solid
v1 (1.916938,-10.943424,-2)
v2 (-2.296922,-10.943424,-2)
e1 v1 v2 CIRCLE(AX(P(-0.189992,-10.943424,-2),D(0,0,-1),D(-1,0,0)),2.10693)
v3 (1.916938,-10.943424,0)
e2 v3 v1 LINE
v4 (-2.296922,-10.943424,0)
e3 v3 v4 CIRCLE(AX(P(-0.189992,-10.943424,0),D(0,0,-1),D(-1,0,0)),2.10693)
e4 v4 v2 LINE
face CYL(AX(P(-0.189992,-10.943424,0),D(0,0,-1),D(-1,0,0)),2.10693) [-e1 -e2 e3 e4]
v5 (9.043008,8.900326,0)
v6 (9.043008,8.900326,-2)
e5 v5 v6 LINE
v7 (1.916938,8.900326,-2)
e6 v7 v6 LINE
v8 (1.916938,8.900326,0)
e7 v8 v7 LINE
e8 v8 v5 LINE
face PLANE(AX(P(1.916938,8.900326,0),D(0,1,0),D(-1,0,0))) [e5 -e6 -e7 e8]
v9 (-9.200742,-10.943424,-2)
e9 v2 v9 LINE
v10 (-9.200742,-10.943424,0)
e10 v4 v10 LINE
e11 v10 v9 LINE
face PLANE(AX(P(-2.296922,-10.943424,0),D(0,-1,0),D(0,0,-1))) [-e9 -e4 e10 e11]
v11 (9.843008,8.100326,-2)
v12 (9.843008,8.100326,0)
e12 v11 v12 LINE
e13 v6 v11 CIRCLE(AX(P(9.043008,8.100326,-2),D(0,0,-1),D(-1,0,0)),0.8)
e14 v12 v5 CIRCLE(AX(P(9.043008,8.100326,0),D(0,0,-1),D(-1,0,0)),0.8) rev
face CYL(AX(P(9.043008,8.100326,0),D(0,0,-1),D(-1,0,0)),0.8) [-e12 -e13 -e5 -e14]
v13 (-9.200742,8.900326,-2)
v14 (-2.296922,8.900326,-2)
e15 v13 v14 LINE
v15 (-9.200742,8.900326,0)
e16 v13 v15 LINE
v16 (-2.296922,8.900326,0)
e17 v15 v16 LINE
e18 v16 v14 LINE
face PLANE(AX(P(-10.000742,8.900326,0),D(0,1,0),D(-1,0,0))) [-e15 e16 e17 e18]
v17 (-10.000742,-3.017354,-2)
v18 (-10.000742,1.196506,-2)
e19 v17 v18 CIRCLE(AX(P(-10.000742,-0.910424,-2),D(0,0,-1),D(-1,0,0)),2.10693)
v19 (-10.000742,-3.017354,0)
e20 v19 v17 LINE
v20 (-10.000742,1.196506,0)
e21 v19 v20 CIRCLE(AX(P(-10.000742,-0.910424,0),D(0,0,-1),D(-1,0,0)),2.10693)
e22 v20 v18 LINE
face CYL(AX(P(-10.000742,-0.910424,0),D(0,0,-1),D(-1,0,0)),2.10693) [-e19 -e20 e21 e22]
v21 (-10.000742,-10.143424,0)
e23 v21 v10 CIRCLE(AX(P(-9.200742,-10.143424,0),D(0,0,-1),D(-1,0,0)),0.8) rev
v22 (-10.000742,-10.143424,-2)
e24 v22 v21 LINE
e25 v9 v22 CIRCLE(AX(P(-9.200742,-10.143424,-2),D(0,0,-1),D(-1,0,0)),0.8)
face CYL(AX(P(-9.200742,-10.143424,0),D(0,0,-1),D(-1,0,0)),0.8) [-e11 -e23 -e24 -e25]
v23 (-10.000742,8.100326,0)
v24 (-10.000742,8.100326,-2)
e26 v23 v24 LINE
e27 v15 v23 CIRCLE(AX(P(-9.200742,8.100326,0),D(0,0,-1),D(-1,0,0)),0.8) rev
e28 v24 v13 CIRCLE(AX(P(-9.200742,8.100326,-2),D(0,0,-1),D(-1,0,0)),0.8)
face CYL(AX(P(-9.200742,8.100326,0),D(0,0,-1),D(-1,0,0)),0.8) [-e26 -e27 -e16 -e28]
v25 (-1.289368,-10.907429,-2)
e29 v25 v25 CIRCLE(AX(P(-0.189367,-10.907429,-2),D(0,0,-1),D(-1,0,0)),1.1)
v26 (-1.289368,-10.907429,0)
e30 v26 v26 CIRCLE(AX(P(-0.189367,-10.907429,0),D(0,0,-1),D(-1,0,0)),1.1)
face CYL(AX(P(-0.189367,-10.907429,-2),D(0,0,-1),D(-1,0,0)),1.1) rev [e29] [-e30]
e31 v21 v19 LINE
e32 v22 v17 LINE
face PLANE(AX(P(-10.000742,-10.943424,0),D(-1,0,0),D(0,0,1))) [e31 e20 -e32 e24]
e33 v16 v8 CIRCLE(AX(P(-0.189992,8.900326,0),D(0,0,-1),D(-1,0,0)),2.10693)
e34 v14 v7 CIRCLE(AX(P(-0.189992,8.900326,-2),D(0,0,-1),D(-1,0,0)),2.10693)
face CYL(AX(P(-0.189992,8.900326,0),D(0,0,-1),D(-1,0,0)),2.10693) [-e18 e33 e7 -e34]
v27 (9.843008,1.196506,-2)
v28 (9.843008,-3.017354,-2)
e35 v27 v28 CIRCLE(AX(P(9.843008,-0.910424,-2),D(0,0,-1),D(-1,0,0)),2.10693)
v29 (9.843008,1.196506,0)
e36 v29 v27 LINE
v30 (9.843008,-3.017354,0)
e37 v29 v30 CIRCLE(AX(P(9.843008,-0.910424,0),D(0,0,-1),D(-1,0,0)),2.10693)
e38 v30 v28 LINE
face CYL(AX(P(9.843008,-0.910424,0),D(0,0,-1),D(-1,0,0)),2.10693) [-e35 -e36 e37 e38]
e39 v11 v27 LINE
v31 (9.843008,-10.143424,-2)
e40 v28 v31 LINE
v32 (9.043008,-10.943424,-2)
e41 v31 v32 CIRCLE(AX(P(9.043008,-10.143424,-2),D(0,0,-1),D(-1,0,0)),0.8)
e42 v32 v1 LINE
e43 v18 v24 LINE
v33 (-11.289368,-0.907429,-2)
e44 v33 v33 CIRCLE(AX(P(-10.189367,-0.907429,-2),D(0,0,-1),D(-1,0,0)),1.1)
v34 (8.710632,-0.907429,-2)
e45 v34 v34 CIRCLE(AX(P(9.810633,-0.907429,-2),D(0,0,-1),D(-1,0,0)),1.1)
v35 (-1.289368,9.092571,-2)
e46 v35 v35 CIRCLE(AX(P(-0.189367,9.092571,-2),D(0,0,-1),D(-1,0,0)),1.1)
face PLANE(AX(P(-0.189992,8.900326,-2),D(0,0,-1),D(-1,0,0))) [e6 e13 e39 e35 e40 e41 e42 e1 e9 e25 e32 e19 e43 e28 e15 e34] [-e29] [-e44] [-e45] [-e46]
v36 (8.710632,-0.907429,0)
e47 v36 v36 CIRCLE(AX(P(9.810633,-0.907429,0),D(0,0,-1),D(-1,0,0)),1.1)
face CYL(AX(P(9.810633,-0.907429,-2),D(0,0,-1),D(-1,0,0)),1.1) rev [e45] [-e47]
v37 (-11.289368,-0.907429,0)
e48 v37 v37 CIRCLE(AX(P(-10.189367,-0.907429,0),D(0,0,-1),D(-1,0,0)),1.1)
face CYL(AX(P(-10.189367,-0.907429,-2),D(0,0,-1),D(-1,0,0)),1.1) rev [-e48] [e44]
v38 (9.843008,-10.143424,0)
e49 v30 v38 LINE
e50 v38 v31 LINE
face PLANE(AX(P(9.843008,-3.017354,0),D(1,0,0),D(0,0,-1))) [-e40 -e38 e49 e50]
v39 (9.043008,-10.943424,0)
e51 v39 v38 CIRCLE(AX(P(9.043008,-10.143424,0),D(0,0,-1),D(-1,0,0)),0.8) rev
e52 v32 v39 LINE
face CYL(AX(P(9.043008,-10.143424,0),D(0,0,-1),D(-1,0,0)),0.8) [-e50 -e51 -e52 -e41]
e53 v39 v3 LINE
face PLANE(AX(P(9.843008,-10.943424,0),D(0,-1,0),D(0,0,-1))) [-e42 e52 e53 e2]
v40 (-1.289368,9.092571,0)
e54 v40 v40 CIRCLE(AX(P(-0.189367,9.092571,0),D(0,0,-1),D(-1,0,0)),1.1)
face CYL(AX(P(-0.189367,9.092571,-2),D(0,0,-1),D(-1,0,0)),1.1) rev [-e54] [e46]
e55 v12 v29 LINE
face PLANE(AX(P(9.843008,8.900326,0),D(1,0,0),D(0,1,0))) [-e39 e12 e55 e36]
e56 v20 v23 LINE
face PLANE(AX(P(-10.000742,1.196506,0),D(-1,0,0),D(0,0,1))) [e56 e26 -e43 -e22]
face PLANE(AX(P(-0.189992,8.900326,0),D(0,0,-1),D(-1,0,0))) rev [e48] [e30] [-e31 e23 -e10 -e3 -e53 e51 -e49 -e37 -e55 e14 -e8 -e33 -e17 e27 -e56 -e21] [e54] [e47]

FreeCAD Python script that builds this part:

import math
import FreeCAD as App
import Part
import Sketcher
Q = App.Units.Quantity


def edges_at(feature, points):
    """Names of the edges that pass closest to the given points."""
    edges = feature.Shape.Edges
    near = lambda p: min(range(len(edges)), key=lambda i: edges[i].distToShape(Part.Vertex(*p))[0])
    return sorted({f"Edge{near(p) + 1}" for p in points})

doc = App.newDocument("Part")
params = doc.addObject("Spreadsheet::Sheet", "Params")
for row, (alias, value) in enumerate([
    ("pad1_length", "2 mm"),
    ("sketch2_diameter", "2.200001 mm"),
    ("hole_diameter", "2.200001 mm"),
    ("fillet_radius", "0.8 mm"),
], start=1):
    params.set(f"A{row}", alias)
    params.set(f"B{row}", "=" + value)
    params.setAlias(f"B{row}", alias)

body = doc.addObject("PartDesign::Body", "Body")

sketch1 = doc.addObject("Sketcher::SketchObject", "Sketch")
body.addObject(sketch1)
sketch1.AttachmentSupport = (doc.XY_Plane, [""])
sketch1.MapMode = "FlatFace"
sketch1.AttachmentOffset = App.Placement(App.Vector(0, 0, -2), App.Rotation())
sketch1.addGeometry(Part.LineSegment(App.Vector(1.916938, 8.900326, 0), App.Vector(9.843008, 8.900326, 0)), False)
sketch1.addGeometry(Part.LineSegment(App.Vector(9.843008, 8.900326, 0), App.Vector(9.843008, 1.196506, 0)), False)
sketch1.addGeometry(Part.ArcOfCircle(Part.Circle(App.Vector(9.843008, -0.910424, 0), App.Vector(0, 0, 1), 2.10693), math.radians(-90), math.radians(90)), False)
sketch1.addGeometry(Part.LineSegment(App.Vector(9.843008, -3.017354, 0), App.Vector(9.843008, -10.943424, 0)), False)
sketch1.addGeometry(Part.LineSegment(App.Vector(9.843008, -10.943424, 0), App.Vector(1.916938, -10.943424, 0)), False)
sketch1.addGeometry(Part.ArcOfCircle(Part.Circle(App.Vector(-0.189992, -10.943424, 0), App.Vector(0, 0, 1), 2.10693), math.radians(180), math.radians(360)), False)
sketch1.addGeometry(Part.LineSegment(App.Vector(-2.296922, -10.943424, 0), App.Vector(-10.000742, -10.943424, 0)), False)
sketch1.addGeometry(Part.LineSegment(App.Vector(-10.000742, -10.943424, 0), App.Vector(-10.000742, -3.017354, 0)), False)
sketch1.addGeometry(Part.ArcOfCircle(Part.Circle(App.Vector(-10.000742, -0.910424, 0), App.Vector(0, 0, 1), 2.10693), math.radians(90), math.radians(270)), False)
sketch1.addGeometry(Part.LineSegment(App.Vector(-10.000742, 1.196506, 0), App.Vector(-10.000742, 8.900326, 0)), False)
sketch1.addGeometry(Part.LineSegment(App.Vector(-10.000742, 8.900326, 0), App.Vector(-2.296922, 8.900326, 0)), False)
sketch1.addGeometry(Part.ArcOfCircle(Part.Circle(App.Vector(-0.189992, 8.900326, 0), App.Vector(0, 0, 1), 2.10693), math.radians(0), math.radians(180)), False)
sketch1.addConstraint(Sketcher.Constraint("Coincident", 0, 2, 1, 1))
sketch1.addConstraint(Sketcher.Constraint("Coincident", 1, 2, 2, 2))
sketch1.addConstraint(Sketcher.Constraint("Coincident", 2, 1, 3, 1))
sketch1.addConstraint(Sketcher.Constraint("Coincident", 3, 2, 4, 1))
sketch1.addConstraint(Sketcher.Constraint("Coincident", 4, 2, 5, 2))
sketch1.addConstraint(Sketcher.Constraint("Coincident", 5, 1, 6, 1))
sketch1.addConstraint(Sketcher.Constraint("Coincident", 6, 2, 7, 1))
sketch1.addConstraint(Sketcher.Constraint("Coincident", 7, 2, 8, 2))
sketch1.addConstraint(Sketcher.Constraint("Coincident", 8, 1, 9, 1))
sketch1.addConstraint(Sketcher.Constraint("Coincident", 9, 2, 10, 1))
sketch1.addConstraint(Sketcher.Constraint("Coincident", 10, 2, 11, 2))
sketch1.addConstraint(Sketcher.Constraint("Coincident", 11, 1, 0, 1))
sketch1.addConstraint(Sketcher.Constraint("Horizontal", 0))
sketch1.addConstraint(Sketcher.Constraint("Vertical", 1))
sketch1.addConstraint(Sketcher.Constraint("Vertical", 3))
sketch1.addConstraint(Sketcher.Constraint("Horizontal", 4))
sketch1.addConstraint(Sketcher.Constraint("Horizontal", 6))
sketch1.addConstraint(Sketcher.Constraint("Vertical", 7))
sketch1.addConstraint(Sketcher.Constraint("Vertical", 9))
sketch1.addConstraint(Sketcher.Constraint("Horizontal", 10))
sketch1.addConstraint(Sketcher.Constraint("Equal", 2, 5))
sketch1.addConstraint(Sketcher.Constraint("Equal", 5, 8))
sketch1.addConstraint(Sketcher.Constraint("Equal", 8, 11))
sketch1.addConstraint(Sketcher.Constraint("Horizontal", 2, 3, 8, 3))
sketch1.addConstraint(Sketcher.Constraint("Horizontal", 11, 3, 0, 2))
sketch1.addConstraint(Sketcher.Constraint("Horizontal", 5, 3, 3, 2))
sketch1.addConstraint(Sketcher.Constraint("Horizontal", 4, 2, 5, 1))
sketch1.addConstraint(Sketcher.Constraint("Horizontal", 0, 2, 9, 2))
sketch1.addConstraint(Sketcher.Constraint("Vertical", 5, 3, 11, 3))
sketch1.addConstraint(Sketcher.Constraint("Vertical", 2, 3, 0, 2))
sketch1.addConstraint(Sketcher.Constraint("Vertical", 1, 2, 2, 1))
sketch1.addConstraint(Sketcher.Constraint("Vertical", 8, 3, 6, 2))
sketch1.addConstraint(Sketcher.Constraint("Vertical", 7, 2, 8, 1))
sketch1.addConstraint(Sketcher.Constraint("Equal", 10, 1))
sketch1.addConstraint(Sketcher.Constraint("Equal", 4, 3))
sketch1.addConstraint(Sketcher.Constraint("Radius", 2, Q("2.10693 mm")))
sketch1.addConstraint(Sketcher.Constraint("DistanceX", 5, 3, 2, 3, Q("10.033 mm")))
sketch1.addConstraint(Sketcher.Constraint("DistanceX", 6, 2, 6, 1, Q("7.70382 mm")))
sketch1.addConstraint(Sketcher.Constraint("DistanceX", -1, 1, 2, 3, Q("9.843008 mm")))
sketch1.addConstraint(Sketcher.Constraint("DistanceY", 2, 3, -1, 1, Q("0.910424 mm")))
pad1 = doc.addObject("PartDesign::Pad", "Pad")
body.addObject(pad1)
pad1.Profile = sketch1
pad1.setExpression("Length", "Params.pad1_length")

sketch2 = doc.addObject("Sketcher::SketchObject", "Sketch001")
body.addObject(sketch2)
sketch2.AttachmentSupport = (doc.XY_Plane, [""])
sketch2.MapMode = "FlatFace"
sketch2.AttachmentOffset = App.Placement(App.Vector(0, 0, -2), App.Rotation())
sketch2.addGeometry(Part.Circle(App.Vector(-0.189367, -10.907429, 0), App.Vector(0, 0, 1), 1.1), False)
sketch2.addGeometry(Part.Circle(App.Vector(-0.189367, 9.092571, 0), App.Vector(0, 0, 1), 1.1), False)
sketch2.addGeometry(Part.Circle(App.Vector(-10.189367, -0.907429, 0), App.Vector(0, 0, 1), 1.1), False)
sketch2.addGeometry(Part.Circle(App.Vector(9.810633, -0.907429, 0), App.Vector(0, 0, 1), 1.1), False)
sketch2.addConstraint(Sketcher.Constraint("Equal", 0, 1))
sketch2.addConstraint(Sketcher.Constraint("Equal", 1, 2))
sketch2.addConstraint(Sketcher.Constraint("Equal", 2, 3))
sketch2.addConstraint(Sketcher.Constraint("Horizontal", 2, 3, 3, 3))
sketch2.addConstraint(Sketcher.Constraint("Vertical", 0, 3, 1, 3))
sketch2.addConstraint(Sketcher.Constraint("Diameter", 0, Q("2.200001 mm")))
sketch2.addConstraint(Sketcher.Constraint("DistanceY", 0, 3, 1, 3, Q("20 mm")))
sketch2.addConstraint(Sketcher.Constraint("DistanceX", 2, 3, 0, 3, Q("10 mm")))
sketch2.addConstraint(Sketcher.Constraint("DistanceY", 0, 3, 2, 3, Q("10 mm")))
sketch2.addConstraint(Sketcher.Constraint("DistanceX", 0, 3, 3, 3, Q("10 mm")))
sketch2.addConstraint(Sketcher.Constraint("DistanceY", 0, 3, -1, 1, Q("10.907429 mm")))
sketch2.addConstraint(Sketcher.Constraint("DistanceX", 0, 3, -1, 1, Q("0.189367 mm")))
sketch2.setExpression("Constraints[5]", "Params.sketch2_diameter")
doc.recompute()
hole = doc.addObject("PartDesign::Hole", "Hole")
body.addObject(hole)
hole.Profile = sketch2
hole.ThreadType = "None"
hole.setExpression("Diameter", "Params.hole_diameter")
hole.DepthType = "ThroughAll"
hole.Reversed = True
doc.recompute()

fillet = doc.addObject("PartDesign::Fillet", "Fillet")
body.addObject(fillet)
fillet.Base = (hole, edges_at(hole, [
    (-10.001, 8.9, -1),
    (-10.001, -10.943, -1),
    (9.843, -10.943, -1),
    (9.843, 8.9, -1),
]))
fillet.setExpression("Radius", "Params.fillet_radius")

doc.recompute()
